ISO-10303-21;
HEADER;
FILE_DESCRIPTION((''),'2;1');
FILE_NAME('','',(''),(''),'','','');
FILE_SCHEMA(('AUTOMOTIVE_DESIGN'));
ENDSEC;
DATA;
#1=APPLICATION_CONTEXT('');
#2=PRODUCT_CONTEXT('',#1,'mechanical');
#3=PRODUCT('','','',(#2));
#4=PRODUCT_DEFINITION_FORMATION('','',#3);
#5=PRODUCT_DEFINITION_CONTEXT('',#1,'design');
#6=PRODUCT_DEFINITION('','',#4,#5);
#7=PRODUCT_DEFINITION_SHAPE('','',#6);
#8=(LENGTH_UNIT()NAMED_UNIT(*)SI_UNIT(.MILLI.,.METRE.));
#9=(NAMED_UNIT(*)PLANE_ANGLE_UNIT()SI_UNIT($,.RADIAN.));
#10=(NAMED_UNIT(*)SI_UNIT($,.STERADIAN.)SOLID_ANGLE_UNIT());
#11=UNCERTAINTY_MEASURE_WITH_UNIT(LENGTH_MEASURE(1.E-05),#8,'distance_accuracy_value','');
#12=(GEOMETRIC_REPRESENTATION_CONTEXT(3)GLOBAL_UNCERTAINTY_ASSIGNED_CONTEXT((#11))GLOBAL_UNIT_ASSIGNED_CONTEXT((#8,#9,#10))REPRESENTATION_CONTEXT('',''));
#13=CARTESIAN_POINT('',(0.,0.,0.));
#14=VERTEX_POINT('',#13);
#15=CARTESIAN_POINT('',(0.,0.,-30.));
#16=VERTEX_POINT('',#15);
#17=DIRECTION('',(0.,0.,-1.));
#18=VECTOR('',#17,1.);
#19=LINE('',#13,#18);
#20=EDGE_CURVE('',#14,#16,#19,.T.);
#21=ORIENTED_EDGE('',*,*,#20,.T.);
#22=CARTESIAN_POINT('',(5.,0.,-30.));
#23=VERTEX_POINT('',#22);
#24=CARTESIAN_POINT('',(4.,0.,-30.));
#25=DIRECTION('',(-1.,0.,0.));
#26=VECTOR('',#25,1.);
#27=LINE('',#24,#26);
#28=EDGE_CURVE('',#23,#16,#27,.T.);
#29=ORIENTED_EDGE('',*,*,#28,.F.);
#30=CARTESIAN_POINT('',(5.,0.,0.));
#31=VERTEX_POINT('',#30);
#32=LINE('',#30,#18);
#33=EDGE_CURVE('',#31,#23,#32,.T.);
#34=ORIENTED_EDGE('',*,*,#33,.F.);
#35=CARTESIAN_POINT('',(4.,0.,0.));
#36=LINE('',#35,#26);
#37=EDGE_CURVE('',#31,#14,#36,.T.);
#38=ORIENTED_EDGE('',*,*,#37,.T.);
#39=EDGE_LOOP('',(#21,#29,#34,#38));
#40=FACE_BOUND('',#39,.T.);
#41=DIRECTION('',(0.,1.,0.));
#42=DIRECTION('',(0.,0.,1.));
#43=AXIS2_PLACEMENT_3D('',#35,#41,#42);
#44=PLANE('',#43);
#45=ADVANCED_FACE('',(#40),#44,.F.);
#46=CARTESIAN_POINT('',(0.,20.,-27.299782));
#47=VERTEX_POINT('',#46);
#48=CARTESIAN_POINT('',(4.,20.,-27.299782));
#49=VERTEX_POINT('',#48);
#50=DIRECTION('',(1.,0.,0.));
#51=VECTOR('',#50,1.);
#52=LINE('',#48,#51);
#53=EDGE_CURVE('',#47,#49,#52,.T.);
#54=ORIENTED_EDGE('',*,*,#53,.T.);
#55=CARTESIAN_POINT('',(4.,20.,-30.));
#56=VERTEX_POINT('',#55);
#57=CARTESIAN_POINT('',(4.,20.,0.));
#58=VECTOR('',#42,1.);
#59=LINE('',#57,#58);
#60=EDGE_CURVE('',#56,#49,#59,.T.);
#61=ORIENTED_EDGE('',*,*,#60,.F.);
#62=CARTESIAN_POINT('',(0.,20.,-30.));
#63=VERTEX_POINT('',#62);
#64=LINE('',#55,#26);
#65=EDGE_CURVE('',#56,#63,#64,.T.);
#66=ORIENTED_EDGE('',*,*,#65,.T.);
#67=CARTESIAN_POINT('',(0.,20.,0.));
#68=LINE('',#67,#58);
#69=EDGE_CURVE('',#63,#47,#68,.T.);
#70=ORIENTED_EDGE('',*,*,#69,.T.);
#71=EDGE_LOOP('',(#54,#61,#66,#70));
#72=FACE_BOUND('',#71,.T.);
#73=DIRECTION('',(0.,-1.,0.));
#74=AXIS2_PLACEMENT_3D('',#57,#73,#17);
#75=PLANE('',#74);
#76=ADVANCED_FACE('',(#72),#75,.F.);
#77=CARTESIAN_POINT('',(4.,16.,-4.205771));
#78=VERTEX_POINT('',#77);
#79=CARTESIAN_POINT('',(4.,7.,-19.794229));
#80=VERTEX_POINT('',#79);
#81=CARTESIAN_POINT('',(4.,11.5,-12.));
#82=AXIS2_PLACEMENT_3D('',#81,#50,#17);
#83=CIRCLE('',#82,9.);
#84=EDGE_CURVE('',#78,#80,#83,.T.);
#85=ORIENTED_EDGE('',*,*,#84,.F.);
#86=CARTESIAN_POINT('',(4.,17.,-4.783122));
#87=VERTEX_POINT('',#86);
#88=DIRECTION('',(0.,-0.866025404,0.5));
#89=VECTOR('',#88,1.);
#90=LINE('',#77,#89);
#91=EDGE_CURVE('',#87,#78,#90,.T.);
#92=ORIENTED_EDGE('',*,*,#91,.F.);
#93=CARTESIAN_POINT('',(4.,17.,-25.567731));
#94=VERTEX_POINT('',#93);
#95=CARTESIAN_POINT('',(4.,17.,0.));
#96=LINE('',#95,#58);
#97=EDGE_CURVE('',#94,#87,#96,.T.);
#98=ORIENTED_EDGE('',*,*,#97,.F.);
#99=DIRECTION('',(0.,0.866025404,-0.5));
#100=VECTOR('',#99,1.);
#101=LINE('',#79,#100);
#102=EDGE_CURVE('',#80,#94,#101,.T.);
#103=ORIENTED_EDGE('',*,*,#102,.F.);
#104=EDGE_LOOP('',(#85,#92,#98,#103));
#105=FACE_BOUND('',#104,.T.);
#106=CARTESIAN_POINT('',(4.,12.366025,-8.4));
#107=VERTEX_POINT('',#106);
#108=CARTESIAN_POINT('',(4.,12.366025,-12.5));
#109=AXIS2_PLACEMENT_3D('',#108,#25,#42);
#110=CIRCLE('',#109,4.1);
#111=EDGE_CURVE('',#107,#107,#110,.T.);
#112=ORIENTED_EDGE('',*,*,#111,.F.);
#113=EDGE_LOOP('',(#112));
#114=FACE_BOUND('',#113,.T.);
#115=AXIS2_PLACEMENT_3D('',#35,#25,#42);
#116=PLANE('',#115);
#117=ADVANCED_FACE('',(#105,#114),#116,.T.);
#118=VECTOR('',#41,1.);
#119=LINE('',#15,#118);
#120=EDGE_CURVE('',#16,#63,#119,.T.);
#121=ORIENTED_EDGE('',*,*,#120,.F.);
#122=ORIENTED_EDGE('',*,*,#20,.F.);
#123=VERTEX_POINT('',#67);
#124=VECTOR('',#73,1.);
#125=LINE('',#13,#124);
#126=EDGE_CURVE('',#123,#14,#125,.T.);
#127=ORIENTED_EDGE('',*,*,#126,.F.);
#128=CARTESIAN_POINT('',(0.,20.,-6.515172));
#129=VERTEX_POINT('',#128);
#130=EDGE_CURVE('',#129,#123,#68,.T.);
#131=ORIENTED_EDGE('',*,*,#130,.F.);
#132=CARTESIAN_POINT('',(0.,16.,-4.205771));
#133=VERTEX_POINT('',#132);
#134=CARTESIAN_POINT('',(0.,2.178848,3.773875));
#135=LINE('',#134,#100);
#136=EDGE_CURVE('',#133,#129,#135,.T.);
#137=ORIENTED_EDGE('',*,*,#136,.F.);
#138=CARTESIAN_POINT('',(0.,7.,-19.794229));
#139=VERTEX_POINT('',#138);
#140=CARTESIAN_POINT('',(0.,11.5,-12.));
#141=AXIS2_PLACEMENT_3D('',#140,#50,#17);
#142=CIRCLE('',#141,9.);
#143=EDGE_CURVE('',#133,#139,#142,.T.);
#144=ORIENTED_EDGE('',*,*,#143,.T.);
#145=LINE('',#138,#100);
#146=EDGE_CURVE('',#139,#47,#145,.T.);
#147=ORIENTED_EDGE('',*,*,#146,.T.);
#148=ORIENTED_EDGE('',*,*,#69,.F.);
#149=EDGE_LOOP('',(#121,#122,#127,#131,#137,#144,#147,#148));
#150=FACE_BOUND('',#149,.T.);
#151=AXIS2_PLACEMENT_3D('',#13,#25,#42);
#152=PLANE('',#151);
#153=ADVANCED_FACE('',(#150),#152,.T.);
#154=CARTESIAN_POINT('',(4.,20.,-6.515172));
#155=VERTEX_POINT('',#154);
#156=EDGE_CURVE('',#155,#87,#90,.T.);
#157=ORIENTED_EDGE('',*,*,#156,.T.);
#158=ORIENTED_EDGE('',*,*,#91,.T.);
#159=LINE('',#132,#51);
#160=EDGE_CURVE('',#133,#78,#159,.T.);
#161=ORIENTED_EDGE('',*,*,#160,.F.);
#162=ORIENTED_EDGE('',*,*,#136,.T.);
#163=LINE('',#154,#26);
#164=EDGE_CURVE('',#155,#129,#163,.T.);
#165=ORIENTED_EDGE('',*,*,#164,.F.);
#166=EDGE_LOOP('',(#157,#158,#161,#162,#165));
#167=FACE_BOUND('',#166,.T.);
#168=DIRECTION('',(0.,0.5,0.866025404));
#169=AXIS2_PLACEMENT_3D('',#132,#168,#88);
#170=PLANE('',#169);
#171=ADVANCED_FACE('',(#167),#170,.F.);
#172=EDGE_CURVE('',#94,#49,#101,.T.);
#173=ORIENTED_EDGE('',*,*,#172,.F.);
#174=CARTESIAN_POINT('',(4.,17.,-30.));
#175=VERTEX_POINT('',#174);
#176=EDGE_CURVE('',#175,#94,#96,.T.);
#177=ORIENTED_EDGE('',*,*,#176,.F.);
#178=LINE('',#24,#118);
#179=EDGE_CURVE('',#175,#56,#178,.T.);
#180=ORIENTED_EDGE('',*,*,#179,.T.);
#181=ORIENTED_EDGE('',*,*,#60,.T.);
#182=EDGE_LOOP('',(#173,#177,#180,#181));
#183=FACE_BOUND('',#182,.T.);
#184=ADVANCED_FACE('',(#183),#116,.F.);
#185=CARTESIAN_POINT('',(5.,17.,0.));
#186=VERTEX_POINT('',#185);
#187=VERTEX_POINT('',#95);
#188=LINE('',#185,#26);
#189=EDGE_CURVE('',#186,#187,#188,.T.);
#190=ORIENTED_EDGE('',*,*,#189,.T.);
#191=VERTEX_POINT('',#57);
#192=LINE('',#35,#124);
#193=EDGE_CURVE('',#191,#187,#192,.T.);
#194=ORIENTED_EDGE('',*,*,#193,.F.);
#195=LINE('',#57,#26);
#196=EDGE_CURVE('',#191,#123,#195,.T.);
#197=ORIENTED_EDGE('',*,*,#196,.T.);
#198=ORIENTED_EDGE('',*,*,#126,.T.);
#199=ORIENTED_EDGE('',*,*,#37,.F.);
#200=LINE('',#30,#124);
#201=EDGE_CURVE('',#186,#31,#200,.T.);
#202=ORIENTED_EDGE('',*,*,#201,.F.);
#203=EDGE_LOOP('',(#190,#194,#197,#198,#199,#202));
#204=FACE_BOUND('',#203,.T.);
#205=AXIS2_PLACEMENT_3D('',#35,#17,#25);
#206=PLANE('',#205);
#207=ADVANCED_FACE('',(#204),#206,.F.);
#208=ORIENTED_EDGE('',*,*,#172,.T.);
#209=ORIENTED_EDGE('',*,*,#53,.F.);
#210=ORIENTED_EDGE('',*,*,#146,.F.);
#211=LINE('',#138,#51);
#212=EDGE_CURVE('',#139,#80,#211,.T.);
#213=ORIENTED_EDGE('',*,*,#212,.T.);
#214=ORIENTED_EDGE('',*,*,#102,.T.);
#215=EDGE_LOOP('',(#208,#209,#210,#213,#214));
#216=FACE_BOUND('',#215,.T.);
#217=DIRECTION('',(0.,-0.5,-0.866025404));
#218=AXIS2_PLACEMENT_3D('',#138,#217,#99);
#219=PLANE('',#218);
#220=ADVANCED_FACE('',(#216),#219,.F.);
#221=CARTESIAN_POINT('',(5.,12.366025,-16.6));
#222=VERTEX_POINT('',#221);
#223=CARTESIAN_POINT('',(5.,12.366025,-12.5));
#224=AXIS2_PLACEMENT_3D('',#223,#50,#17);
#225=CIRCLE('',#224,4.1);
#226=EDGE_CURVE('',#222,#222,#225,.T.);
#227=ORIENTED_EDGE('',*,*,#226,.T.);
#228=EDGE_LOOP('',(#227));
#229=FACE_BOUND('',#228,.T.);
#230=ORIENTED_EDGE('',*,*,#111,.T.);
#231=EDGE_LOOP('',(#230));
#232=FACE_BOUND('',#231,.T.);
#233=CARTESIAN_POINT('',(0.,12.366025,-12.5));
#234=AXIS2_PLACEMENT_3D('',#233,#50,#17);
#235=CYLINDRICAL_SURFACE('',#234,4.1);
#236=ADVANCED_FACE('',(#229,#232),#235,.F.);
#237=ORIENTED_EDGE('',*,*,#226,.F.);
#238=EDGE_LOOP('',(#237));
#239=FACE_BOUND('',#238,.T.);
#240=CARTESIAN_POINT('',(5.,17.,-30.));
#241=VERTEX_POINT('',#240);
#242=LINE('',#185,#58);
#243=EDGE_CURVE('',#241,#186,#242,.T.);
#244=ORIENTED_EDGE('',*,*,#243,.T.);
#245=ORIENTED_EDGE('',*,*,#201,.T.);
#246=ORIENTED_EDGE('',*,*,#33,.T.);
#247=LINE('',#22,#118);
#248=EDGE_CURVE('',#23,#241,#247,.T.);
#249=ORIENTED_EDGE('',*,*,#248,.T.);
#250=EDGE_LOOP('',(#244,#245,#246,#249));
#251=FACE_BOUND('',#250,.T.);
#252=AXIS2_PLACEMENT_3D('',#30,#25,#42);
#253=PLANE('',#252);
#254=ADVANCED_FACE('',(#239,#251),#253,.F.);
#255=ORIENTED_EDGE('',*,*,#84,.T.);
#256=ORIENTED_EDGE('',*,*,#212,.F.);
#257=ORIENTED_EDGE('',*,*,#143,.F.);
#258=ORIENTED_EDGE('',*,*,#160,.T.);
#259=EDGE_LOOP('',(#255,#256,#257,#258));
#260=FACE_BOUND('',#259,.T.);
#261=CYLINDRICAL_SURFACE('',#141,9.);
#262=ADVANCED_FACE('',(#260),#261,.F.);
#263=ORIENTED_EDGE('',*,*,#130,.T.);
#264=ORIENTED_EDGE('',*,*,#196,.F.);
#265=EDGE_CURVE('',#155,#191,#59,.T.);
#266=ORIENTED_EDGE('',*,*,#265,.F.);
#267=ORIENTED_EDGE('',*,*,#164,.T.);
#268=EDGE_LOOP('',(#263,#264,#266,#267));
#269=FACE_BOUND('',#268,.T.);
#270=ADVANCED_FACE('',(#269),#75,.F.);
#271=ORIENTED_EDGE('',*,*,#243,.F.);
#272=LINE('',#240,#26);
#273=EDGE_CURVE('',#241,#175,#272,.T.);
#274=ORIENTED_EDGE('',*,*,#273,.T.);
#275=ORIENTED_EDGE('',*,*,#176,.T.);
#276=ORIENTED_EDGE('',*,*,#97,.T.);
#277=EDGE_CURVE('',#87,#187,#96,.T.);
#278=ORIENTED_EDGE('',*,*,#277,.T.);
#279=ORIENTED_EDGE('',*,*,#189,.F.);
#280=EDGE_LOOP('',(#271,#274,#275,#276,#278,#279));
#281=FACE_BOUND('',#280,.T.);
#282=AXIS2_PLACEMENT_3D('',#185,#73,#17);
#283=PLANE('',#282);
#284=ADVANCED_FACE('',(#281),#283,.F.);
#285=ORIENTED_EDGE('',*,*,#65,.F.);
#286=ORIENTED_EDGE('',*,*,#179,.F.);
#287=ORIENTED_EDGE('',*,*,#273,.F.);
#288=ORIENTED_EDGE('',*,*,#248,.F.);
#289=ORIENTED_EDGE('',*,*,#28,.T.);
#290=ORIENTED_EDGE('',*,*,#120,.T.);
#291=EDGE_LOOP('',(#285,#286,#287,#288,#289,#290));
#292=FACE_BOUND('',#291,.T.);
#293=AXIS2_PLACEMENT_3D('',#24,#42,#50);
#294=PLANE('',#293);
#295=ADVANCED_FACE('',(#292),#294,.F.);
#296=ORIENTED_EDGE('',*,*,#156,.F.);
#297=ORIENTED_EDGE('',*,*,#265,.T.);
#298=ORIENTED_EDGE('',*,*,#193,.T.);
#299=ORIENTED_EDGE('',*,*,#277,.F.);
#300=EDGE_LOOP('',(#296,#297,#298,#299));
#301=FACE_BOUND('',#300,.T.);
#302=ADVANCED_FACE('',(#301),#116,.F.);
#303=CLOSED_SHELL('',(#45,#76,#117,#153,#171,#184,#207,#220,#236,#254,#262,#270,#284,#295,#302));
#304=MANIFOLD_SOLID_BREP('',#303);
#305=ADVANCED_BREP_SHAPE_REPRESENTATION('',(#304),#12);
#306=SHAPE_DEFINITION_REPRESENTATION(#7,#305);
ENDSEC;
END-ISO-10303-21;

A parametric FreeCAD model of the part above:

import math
import FreeCAD as App
import Part
import Sketcher
from FreeCAD import Vector
Q = App.Units.Quantity

doc = App.newDocument("Part")
body = doc.addObject("PartDesign::Body", "Body")

# Sketch on YZ plane
sketch1 = body.newObject("Sketcher::SketchObject", "Sketch")
sketch1.AttachmentSupport = (doc.getObject("YZ_Plane"), [""])
sketch1.MapMode = "FlatFace"
sketch1.addGeometry([
    Part.LineSegment(Vector(20, 0, 0), Vector(0, 0, 0)),
    Part.LineSegment(Vector(0, 0, 0), Vector(0, -30, 0)),
    Part.LineSegment(Vector(0, -30, 0), Vector(20, -30, 0)),
    Part.LineSegment(Vector(20, -30, 0), Vector(20, 0, 0)),
], False)
sketch1.addConstraint([
    Sketcher.Constraint("Coincident", 0, 2, 1, 1),
    Sketcher.Constraint("Coincident", 1, 2, 2, 1),
    Sketcher.Constraint("Coincident", 2, 2, 3, 1),
    Sketcher.Constraint("Coincident", 3, 2, 0, 1),
    Sketcher.Constraint("Horizontal", 0),
    Sketcher.Constraint("Vertical", 1),
    Sketcher.Constraint("Horizontal", 2),
    Sketcher.Constraint("Vertical", 3),
    Sketcher.Constraint("Coincident", 0, 2, -1, 1),
    Sketcher.Constraint("DistanceX", 0, 2, 0, 1, Q("20 mm")),
    Sketcher.Constraint("DistanceY", 1, 2, 1, 1, Q("30 mm")),
])
pad1 = body.newObject("PartDesign::Pad", "Pad")
pad1.Profile = sketch1
pad1.Length = 4

# Sketch on YZ plane
sketch2 = body.newObject("Sketcher::SketchObject", "Sketch001")
sketch2.AttachmentSupport = (doc.getObject("YZ_Plane"), [""])
sketch2.MapMode = "FlatFace"
sketch2.AttachmentOffset = App.Placement(Vector(0, 0, 4), App.Rotation())
sketch2.addGeometry([
    Part.LineSegment(Vector(42, -19, 0), Vector(16, -4, 0)),
    Part.ArcOfCircle(Part.Circle(Vector(12, -12, 0), Vector(0, 0, 1), 9), math.radians(60), math.radians(240)),
    Part.LineSegment(Vector(7, -20, 0), Vector(33, -35, 0)),
    Part.LineSegment(Vector(33, -35, 0), Vector(42, -19, 0)),
], False)
sketch2.addConstraint([
    Sketcher.Constraint("Tangent", 0, 2, 1, 1),
    Sketcher.Constraint("Tangent", 1, 2, 2, 1),
    Sketcher.Constraint("Coincident", 2, 2, 3, 1),
    Sketcher.Constraint("Coincident", 3, 2, 0, 1),
    Sketcher.Constraint("Parallel", 0, 2),
    Sketcher.Constraint("Perpendicular", 2, 3),
    Sketcher.Constraint("Radius", 1, Q("9 mm")),
    Sketcher.Constraint("Angle", 0, Q("150 deg")),
    Sketcher.Constraint("Distance", 0, Q("30 mm")),
    Sketcher.Constraint("DistanceY", 1, 3, -1, 1, Q("12 mm")),
    Sketcher.Constraint("DistanceX", -1, 1, 0, 2, Q("16 mm")),
])
pocket1 = body.newObject("PartDesign::Pocket", "Pocket")
pocket1.Profile = sketch2
pocket1.Type = "ThroughAll"

# Sketch on YZ plane
sketch3 = body.newObject("Sketcher::SketchObject", "Sketch002")
sketch3.AttachmentSupport = (doc.getObject("YZ_Plane"), [""])
sketch3.MapMode = "FlatFace"
sketch3.AttachmentOffset = App.Placement(Vector(0, 0, 4), App.Rotation())
sketch3.addGeometry([
    Part.LineSegment(Vector(17, 0, 0), Vector(0, 0, 0)),
    Part.LineSegment(Vector(0, 0, 0), Vector(0, -30, 0)),
    Part.LineSegment(Vector(0, -30, 0), Vector(17, -30, 0)),
    Part.LineSegment(Vector(17, -30, 0), Vector(17, 0, 0)),
], False)
sketch3.addConstraint([
    Sketcher.Constraint("Coincident", 0, 2, 1, 1),
    Sketcher.Constraint("Coincident", 1, 2, 2, 1),
    Sketcher.Constraint("Coincident", 2, 2, 3, 1),
    Sketcher.Constraint("Coincident", 3, 2, 0, 1),
    Sketcher.Constraint("Horizontal", 0),
    Sketcher.Constraint("Vertical", 1),
    Sketcher.Constraint("Horizontal", 2),
    Sketcher.Constraint("Vertical", 3),
    Sketcher.Constraint("Coincident", 0, 2, -1, 1),
    Sketcher.Constraint("DistanceX", 0, 2, 0, 1, Q("17 mm")),
    Sketcher.Constraint("DistanceY", 1, 2, 1, 1, Q("30 mm")),
])
pad2 = body.newObject("PartDesign::Pad", "Pad001")
pad2.Profile = sketch3
pad2.Length = 1

# Sketch on YZ plane
sketch4 = body.newObject("Sketcher::SketchObject", "Sketch003")
sketch4.AttachmentSupport = (doc.getObject("YZ_Plane"), [""])
sketch4.MapMode = "FlatFace"
sketch4.AttachmentOffset = App.Placement(Vector(0, 0, 5), App.Rotation())
sketch4.addGeometry(Part.Circle(Vector(12.4, -12.5, 0), Vector(0, 0, 1), 4.1), False)
sketch4.addConstraint([
    Sketcher.Constraint("Diameter", 0, Q("8.2 mm")),
    Sketcher.Constraint("DistanceY", 0, 3, -1, 1, Q("12.5 mm")),
    Sketcher.Constraint("DistanceX", -1, 1, 0, 3, Q("12.366025 mm")),
])
pocket2 = body.newObject("PartDesign::Pocket", "Pocket001")
pocket2.Profile = sketch4
pocket2.Type = "ThroughAll"

doc.recompute()
